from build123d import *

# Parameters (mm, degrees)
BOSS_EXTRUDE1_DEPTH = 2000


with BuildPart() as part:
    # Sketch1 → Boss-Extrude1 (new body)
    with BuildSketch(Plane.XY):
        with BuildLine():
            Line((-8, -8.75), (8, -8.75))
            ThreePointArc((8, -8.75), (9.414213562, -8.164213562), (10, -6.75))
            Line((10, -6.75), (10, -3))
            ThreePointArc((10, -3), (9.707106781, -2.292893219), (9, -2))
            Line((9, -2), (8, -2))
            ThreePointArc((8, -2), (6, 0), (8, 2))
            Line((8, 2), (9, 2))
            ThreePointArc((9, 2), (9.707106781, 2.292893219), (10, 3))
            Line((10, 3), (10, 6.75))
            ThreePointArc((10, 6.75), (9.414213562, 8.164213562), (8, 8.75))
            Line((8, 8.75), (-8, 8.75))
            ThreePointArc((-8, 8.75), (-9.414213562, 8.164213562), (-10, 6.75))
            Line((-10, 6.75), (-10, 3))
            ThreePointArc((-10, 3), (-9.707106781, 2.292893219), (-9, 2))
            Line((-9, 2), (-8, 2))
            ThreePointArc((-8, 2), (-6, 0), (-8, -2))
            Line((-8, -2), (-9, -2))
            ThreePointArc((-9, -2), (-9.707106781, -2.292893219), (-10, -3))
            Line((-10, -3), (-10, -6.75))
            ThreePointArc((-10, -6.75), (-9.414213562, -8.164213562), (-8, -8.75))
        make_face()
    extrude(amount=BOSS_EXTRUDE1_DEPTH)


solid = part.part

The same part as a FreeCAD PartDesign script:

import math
import FreeCAD as App
import Part
import Sketcher
from FreeCAD import Vector
Q = App.Units.Quantity

doc = App.newDocument("Part")
body = doc.addObject("PartDesign::Body", "Body")

# Sketch on XY plane
sketch1 = body.newObject("Sketcher::SketchObject", "Sketch")
sketch1.AttachmentSupport = (doc.getObject("XY_Plane"), [""])
sketch1.MapMode = "FlatFace"
sketch1.addGeometry([
    Part.LineSegment(Vector(-8, -8.75, 0), Vector(8, -8.75, 0)),  # 0
    Part.ArcOfCircle(Part.Circle(Vector(8, -6.75, 0), Vector(0, 0, 1), 2), math.radians(-90), math.radians(0)),  # 1
    Part.LineSegment(Vector(10, -6.75, 0), Vector(10, -3, 0)),  # 2
    Part.ArcOfCircle(Part.Circle(Vector(9, -3, 0), Vector(0, 0, 1), 1), math.radians(0), math.radians(90)),  # 3
    Part.LineSegment(Vector(9, -2, 0), Vector(8, -2, 0)),  # 4
    Part.ArcOfCircle(Part.Circle(Vector(8, 0, 0), Vector(0, 0, 1), 2), math.radians(90), math.radians(270)),  # 5
    Part.LineSegment(Vector(8, 2, 0), Vector(9, 2, 0)),  # 6
    Part.ArcOfCircle(Part.Circle(Vector(9, 3, 0), Vector(0, 0, 1), 1), math.radians(-90), math.radians(0)),  # 7
    Part.LineSegment(Vector(10, 3, 0), Vector(10, 6.75, 0)),  # 8
    Part.ArcOfCircle(Part.Circle(Vector(8, 6.75, 0), Vector(0, 0, 1), 2), math.radians(0), math.radians(90)),  # 9
    Part.LineSegment(Vector(8, 8.75, 0), Vector(-8, 8.75, 0)),  # 10
    Part.ArcOfCircle(Part.Circle(Vector(-8, 6.75, 0), Vector(0, 0, 1), 2), math.radians(90), math.radians(180)),  # 11
    Part.LineSegment(Vector(-10, 6.75, 0), Vector(-10, 3, 0)),  # 12
    Part.ArcOfCircle(Part.Circle(Vector(-9, 3, 0), Vector(0, 0, 1), 1), math.radians(-180), math.radians(-90)),  # 13
    Part.LineSegment(Vector(-9, 2, 0), Vector(-8, 2, 0)),  # 14
    Part.ArcOfCircle(Part.Circle(Vector(-8, 0, 0), Vector(0, 0, 1), 2), math.radians(-90), math.radians(90)),  # 15
    Part.LineSegment(Vector(-8, -2, 0), Vector(-9, -2, 0)),  # 16
    Part.ArcOfCircle(Part.Circle(Vector(-9, -3, 0), Vector(0, 0, 1), 1), math.radians(90), math.radians(180)),  # 17
    Part.LineSegment(Vector(-10, -3, 0), Vector(-10, -6.75, 0)),  # 18
    Part.ArcOfCircle(Part.Circle(Vector(-8, -6.75, 0), Vector(0, 0, 1), 2), math.radians(-180), math.radians(-90)),  # 19
], False)
sketch1.addConstraint([
    Sketcher.Constraint("Tangent", 0, 2, 1, 1),
    Sketcher.Constraint("Tangent", 1, 2, 2, 1),
    Sketcher.Constraint("Tangent", 2, 2, 3, 1),
    Sketcher.Constraint("Tangent", 3, 2, 4, 1),
    Sketcher.Constraint("Tangent", 4, 2, 5, 2),
    Sketcher.Constraint("Tangent", 5, 1, 6, 1),
    Sketcher.Constraint("Tangent", 6, 2, 7, 1),
    Sketcher.Constraint("Tangent", 7, 2, 8, 1),
    Sketcher.Constraint("Tangent", 8, 2, 9, 1),
    Sketcher.Constraint("Tangent", 9, 2, 10, 1),
    Sketcher.Constraint("Tangent", 10, 2, 11, 1),
    Sketcher.Constraint("Tangent", 11, 2, 12, 1),
    Sketcher.Constraint("Tangent", 12, 2, 13, 1),
    Sketcher.Constraint("Tangent", 13, 2, 14, 1),
    Sketcher.Constraint("Tangent", 14, 2, 15, 2),
    Sketcher.Constraint("Tangent", 15, 1, 16, 1),
    Sketcher.Constraint("Tangent", 16, 2, 17, 1),
    Sketcher.Constraint("Tangent", 17, 2, 18, 1),
    Sketcher.Constraint("Tangent", 18, 2, 19, 1),
    Sketcher.Constraint("Tangent", 19, 2, 0, 1),
    Sketcher.Constraint("Horizontal", 0),
    Sketcher.Constraint("Vertical", 2),
    Sketcher.Constraint("Horizontal", 4),
    Sketcher.Constraint("Horizontal", 6),
    Sketcher.Constraint("Vertical", 8),
    Sketcher.Constraint("Horizontal", 10),
    Sketcher.Constraint("Vertical", 12),
    Sketcher.Constraint("Horizontal", 14),
    Sketcher.Constraint("Horizontal", 16),
    Sketcher.Constraint("Vertical", 18),
    Sketcher.Constraint("Equal", 1, 5),
    Sketcher.Constraint("Equal", 3, 7),
    Sketcher.Constraint("Equal", 5, 9),
    Sketcher.Constraint("Equal", 9, 11),
    Sketcher.Constraint("Equal", 7, 13),
    Sketcher.Constraint("Equal", 11, 15),
    Sketcher.Constraint("Equal", 13, 17),
    Sketcher.Constraint("Equal", 15, 19),
    Sketcher.Constraint("Symmetric", 1, 3, 11, 3, -1, 1),
    Sketcher.Constraint("Symmetric", 5, 3, 15, 3, -1, 1),
    Sketcher.Constraint("Symmetric", 7, 3, 13, 3, -2),
    Sketcher.Constraint("Vertical", 1, 3, 5, 3),
    Sketcher.Constraint("Vertical", 13, 3, 17, 3),
    Sketcher.Constraint("Radius", 1, Q("2 mm")),
    Sketcher.Constraint("Radius", 3, Q("1 mm")),
    Sketcher.Constraint("DistanceX", 0, 1, 0, 2, Q("16 mm")),
    Sketcher.Constraint("DistanceY", 2, 1, 2, 2, Q("3.75 mm")),
])
pad1 = body.newObject("PartDesign::Pad", "Pad")
pad1.Profile = sketch1
pad1.Length = 2000

doc.recompute()
